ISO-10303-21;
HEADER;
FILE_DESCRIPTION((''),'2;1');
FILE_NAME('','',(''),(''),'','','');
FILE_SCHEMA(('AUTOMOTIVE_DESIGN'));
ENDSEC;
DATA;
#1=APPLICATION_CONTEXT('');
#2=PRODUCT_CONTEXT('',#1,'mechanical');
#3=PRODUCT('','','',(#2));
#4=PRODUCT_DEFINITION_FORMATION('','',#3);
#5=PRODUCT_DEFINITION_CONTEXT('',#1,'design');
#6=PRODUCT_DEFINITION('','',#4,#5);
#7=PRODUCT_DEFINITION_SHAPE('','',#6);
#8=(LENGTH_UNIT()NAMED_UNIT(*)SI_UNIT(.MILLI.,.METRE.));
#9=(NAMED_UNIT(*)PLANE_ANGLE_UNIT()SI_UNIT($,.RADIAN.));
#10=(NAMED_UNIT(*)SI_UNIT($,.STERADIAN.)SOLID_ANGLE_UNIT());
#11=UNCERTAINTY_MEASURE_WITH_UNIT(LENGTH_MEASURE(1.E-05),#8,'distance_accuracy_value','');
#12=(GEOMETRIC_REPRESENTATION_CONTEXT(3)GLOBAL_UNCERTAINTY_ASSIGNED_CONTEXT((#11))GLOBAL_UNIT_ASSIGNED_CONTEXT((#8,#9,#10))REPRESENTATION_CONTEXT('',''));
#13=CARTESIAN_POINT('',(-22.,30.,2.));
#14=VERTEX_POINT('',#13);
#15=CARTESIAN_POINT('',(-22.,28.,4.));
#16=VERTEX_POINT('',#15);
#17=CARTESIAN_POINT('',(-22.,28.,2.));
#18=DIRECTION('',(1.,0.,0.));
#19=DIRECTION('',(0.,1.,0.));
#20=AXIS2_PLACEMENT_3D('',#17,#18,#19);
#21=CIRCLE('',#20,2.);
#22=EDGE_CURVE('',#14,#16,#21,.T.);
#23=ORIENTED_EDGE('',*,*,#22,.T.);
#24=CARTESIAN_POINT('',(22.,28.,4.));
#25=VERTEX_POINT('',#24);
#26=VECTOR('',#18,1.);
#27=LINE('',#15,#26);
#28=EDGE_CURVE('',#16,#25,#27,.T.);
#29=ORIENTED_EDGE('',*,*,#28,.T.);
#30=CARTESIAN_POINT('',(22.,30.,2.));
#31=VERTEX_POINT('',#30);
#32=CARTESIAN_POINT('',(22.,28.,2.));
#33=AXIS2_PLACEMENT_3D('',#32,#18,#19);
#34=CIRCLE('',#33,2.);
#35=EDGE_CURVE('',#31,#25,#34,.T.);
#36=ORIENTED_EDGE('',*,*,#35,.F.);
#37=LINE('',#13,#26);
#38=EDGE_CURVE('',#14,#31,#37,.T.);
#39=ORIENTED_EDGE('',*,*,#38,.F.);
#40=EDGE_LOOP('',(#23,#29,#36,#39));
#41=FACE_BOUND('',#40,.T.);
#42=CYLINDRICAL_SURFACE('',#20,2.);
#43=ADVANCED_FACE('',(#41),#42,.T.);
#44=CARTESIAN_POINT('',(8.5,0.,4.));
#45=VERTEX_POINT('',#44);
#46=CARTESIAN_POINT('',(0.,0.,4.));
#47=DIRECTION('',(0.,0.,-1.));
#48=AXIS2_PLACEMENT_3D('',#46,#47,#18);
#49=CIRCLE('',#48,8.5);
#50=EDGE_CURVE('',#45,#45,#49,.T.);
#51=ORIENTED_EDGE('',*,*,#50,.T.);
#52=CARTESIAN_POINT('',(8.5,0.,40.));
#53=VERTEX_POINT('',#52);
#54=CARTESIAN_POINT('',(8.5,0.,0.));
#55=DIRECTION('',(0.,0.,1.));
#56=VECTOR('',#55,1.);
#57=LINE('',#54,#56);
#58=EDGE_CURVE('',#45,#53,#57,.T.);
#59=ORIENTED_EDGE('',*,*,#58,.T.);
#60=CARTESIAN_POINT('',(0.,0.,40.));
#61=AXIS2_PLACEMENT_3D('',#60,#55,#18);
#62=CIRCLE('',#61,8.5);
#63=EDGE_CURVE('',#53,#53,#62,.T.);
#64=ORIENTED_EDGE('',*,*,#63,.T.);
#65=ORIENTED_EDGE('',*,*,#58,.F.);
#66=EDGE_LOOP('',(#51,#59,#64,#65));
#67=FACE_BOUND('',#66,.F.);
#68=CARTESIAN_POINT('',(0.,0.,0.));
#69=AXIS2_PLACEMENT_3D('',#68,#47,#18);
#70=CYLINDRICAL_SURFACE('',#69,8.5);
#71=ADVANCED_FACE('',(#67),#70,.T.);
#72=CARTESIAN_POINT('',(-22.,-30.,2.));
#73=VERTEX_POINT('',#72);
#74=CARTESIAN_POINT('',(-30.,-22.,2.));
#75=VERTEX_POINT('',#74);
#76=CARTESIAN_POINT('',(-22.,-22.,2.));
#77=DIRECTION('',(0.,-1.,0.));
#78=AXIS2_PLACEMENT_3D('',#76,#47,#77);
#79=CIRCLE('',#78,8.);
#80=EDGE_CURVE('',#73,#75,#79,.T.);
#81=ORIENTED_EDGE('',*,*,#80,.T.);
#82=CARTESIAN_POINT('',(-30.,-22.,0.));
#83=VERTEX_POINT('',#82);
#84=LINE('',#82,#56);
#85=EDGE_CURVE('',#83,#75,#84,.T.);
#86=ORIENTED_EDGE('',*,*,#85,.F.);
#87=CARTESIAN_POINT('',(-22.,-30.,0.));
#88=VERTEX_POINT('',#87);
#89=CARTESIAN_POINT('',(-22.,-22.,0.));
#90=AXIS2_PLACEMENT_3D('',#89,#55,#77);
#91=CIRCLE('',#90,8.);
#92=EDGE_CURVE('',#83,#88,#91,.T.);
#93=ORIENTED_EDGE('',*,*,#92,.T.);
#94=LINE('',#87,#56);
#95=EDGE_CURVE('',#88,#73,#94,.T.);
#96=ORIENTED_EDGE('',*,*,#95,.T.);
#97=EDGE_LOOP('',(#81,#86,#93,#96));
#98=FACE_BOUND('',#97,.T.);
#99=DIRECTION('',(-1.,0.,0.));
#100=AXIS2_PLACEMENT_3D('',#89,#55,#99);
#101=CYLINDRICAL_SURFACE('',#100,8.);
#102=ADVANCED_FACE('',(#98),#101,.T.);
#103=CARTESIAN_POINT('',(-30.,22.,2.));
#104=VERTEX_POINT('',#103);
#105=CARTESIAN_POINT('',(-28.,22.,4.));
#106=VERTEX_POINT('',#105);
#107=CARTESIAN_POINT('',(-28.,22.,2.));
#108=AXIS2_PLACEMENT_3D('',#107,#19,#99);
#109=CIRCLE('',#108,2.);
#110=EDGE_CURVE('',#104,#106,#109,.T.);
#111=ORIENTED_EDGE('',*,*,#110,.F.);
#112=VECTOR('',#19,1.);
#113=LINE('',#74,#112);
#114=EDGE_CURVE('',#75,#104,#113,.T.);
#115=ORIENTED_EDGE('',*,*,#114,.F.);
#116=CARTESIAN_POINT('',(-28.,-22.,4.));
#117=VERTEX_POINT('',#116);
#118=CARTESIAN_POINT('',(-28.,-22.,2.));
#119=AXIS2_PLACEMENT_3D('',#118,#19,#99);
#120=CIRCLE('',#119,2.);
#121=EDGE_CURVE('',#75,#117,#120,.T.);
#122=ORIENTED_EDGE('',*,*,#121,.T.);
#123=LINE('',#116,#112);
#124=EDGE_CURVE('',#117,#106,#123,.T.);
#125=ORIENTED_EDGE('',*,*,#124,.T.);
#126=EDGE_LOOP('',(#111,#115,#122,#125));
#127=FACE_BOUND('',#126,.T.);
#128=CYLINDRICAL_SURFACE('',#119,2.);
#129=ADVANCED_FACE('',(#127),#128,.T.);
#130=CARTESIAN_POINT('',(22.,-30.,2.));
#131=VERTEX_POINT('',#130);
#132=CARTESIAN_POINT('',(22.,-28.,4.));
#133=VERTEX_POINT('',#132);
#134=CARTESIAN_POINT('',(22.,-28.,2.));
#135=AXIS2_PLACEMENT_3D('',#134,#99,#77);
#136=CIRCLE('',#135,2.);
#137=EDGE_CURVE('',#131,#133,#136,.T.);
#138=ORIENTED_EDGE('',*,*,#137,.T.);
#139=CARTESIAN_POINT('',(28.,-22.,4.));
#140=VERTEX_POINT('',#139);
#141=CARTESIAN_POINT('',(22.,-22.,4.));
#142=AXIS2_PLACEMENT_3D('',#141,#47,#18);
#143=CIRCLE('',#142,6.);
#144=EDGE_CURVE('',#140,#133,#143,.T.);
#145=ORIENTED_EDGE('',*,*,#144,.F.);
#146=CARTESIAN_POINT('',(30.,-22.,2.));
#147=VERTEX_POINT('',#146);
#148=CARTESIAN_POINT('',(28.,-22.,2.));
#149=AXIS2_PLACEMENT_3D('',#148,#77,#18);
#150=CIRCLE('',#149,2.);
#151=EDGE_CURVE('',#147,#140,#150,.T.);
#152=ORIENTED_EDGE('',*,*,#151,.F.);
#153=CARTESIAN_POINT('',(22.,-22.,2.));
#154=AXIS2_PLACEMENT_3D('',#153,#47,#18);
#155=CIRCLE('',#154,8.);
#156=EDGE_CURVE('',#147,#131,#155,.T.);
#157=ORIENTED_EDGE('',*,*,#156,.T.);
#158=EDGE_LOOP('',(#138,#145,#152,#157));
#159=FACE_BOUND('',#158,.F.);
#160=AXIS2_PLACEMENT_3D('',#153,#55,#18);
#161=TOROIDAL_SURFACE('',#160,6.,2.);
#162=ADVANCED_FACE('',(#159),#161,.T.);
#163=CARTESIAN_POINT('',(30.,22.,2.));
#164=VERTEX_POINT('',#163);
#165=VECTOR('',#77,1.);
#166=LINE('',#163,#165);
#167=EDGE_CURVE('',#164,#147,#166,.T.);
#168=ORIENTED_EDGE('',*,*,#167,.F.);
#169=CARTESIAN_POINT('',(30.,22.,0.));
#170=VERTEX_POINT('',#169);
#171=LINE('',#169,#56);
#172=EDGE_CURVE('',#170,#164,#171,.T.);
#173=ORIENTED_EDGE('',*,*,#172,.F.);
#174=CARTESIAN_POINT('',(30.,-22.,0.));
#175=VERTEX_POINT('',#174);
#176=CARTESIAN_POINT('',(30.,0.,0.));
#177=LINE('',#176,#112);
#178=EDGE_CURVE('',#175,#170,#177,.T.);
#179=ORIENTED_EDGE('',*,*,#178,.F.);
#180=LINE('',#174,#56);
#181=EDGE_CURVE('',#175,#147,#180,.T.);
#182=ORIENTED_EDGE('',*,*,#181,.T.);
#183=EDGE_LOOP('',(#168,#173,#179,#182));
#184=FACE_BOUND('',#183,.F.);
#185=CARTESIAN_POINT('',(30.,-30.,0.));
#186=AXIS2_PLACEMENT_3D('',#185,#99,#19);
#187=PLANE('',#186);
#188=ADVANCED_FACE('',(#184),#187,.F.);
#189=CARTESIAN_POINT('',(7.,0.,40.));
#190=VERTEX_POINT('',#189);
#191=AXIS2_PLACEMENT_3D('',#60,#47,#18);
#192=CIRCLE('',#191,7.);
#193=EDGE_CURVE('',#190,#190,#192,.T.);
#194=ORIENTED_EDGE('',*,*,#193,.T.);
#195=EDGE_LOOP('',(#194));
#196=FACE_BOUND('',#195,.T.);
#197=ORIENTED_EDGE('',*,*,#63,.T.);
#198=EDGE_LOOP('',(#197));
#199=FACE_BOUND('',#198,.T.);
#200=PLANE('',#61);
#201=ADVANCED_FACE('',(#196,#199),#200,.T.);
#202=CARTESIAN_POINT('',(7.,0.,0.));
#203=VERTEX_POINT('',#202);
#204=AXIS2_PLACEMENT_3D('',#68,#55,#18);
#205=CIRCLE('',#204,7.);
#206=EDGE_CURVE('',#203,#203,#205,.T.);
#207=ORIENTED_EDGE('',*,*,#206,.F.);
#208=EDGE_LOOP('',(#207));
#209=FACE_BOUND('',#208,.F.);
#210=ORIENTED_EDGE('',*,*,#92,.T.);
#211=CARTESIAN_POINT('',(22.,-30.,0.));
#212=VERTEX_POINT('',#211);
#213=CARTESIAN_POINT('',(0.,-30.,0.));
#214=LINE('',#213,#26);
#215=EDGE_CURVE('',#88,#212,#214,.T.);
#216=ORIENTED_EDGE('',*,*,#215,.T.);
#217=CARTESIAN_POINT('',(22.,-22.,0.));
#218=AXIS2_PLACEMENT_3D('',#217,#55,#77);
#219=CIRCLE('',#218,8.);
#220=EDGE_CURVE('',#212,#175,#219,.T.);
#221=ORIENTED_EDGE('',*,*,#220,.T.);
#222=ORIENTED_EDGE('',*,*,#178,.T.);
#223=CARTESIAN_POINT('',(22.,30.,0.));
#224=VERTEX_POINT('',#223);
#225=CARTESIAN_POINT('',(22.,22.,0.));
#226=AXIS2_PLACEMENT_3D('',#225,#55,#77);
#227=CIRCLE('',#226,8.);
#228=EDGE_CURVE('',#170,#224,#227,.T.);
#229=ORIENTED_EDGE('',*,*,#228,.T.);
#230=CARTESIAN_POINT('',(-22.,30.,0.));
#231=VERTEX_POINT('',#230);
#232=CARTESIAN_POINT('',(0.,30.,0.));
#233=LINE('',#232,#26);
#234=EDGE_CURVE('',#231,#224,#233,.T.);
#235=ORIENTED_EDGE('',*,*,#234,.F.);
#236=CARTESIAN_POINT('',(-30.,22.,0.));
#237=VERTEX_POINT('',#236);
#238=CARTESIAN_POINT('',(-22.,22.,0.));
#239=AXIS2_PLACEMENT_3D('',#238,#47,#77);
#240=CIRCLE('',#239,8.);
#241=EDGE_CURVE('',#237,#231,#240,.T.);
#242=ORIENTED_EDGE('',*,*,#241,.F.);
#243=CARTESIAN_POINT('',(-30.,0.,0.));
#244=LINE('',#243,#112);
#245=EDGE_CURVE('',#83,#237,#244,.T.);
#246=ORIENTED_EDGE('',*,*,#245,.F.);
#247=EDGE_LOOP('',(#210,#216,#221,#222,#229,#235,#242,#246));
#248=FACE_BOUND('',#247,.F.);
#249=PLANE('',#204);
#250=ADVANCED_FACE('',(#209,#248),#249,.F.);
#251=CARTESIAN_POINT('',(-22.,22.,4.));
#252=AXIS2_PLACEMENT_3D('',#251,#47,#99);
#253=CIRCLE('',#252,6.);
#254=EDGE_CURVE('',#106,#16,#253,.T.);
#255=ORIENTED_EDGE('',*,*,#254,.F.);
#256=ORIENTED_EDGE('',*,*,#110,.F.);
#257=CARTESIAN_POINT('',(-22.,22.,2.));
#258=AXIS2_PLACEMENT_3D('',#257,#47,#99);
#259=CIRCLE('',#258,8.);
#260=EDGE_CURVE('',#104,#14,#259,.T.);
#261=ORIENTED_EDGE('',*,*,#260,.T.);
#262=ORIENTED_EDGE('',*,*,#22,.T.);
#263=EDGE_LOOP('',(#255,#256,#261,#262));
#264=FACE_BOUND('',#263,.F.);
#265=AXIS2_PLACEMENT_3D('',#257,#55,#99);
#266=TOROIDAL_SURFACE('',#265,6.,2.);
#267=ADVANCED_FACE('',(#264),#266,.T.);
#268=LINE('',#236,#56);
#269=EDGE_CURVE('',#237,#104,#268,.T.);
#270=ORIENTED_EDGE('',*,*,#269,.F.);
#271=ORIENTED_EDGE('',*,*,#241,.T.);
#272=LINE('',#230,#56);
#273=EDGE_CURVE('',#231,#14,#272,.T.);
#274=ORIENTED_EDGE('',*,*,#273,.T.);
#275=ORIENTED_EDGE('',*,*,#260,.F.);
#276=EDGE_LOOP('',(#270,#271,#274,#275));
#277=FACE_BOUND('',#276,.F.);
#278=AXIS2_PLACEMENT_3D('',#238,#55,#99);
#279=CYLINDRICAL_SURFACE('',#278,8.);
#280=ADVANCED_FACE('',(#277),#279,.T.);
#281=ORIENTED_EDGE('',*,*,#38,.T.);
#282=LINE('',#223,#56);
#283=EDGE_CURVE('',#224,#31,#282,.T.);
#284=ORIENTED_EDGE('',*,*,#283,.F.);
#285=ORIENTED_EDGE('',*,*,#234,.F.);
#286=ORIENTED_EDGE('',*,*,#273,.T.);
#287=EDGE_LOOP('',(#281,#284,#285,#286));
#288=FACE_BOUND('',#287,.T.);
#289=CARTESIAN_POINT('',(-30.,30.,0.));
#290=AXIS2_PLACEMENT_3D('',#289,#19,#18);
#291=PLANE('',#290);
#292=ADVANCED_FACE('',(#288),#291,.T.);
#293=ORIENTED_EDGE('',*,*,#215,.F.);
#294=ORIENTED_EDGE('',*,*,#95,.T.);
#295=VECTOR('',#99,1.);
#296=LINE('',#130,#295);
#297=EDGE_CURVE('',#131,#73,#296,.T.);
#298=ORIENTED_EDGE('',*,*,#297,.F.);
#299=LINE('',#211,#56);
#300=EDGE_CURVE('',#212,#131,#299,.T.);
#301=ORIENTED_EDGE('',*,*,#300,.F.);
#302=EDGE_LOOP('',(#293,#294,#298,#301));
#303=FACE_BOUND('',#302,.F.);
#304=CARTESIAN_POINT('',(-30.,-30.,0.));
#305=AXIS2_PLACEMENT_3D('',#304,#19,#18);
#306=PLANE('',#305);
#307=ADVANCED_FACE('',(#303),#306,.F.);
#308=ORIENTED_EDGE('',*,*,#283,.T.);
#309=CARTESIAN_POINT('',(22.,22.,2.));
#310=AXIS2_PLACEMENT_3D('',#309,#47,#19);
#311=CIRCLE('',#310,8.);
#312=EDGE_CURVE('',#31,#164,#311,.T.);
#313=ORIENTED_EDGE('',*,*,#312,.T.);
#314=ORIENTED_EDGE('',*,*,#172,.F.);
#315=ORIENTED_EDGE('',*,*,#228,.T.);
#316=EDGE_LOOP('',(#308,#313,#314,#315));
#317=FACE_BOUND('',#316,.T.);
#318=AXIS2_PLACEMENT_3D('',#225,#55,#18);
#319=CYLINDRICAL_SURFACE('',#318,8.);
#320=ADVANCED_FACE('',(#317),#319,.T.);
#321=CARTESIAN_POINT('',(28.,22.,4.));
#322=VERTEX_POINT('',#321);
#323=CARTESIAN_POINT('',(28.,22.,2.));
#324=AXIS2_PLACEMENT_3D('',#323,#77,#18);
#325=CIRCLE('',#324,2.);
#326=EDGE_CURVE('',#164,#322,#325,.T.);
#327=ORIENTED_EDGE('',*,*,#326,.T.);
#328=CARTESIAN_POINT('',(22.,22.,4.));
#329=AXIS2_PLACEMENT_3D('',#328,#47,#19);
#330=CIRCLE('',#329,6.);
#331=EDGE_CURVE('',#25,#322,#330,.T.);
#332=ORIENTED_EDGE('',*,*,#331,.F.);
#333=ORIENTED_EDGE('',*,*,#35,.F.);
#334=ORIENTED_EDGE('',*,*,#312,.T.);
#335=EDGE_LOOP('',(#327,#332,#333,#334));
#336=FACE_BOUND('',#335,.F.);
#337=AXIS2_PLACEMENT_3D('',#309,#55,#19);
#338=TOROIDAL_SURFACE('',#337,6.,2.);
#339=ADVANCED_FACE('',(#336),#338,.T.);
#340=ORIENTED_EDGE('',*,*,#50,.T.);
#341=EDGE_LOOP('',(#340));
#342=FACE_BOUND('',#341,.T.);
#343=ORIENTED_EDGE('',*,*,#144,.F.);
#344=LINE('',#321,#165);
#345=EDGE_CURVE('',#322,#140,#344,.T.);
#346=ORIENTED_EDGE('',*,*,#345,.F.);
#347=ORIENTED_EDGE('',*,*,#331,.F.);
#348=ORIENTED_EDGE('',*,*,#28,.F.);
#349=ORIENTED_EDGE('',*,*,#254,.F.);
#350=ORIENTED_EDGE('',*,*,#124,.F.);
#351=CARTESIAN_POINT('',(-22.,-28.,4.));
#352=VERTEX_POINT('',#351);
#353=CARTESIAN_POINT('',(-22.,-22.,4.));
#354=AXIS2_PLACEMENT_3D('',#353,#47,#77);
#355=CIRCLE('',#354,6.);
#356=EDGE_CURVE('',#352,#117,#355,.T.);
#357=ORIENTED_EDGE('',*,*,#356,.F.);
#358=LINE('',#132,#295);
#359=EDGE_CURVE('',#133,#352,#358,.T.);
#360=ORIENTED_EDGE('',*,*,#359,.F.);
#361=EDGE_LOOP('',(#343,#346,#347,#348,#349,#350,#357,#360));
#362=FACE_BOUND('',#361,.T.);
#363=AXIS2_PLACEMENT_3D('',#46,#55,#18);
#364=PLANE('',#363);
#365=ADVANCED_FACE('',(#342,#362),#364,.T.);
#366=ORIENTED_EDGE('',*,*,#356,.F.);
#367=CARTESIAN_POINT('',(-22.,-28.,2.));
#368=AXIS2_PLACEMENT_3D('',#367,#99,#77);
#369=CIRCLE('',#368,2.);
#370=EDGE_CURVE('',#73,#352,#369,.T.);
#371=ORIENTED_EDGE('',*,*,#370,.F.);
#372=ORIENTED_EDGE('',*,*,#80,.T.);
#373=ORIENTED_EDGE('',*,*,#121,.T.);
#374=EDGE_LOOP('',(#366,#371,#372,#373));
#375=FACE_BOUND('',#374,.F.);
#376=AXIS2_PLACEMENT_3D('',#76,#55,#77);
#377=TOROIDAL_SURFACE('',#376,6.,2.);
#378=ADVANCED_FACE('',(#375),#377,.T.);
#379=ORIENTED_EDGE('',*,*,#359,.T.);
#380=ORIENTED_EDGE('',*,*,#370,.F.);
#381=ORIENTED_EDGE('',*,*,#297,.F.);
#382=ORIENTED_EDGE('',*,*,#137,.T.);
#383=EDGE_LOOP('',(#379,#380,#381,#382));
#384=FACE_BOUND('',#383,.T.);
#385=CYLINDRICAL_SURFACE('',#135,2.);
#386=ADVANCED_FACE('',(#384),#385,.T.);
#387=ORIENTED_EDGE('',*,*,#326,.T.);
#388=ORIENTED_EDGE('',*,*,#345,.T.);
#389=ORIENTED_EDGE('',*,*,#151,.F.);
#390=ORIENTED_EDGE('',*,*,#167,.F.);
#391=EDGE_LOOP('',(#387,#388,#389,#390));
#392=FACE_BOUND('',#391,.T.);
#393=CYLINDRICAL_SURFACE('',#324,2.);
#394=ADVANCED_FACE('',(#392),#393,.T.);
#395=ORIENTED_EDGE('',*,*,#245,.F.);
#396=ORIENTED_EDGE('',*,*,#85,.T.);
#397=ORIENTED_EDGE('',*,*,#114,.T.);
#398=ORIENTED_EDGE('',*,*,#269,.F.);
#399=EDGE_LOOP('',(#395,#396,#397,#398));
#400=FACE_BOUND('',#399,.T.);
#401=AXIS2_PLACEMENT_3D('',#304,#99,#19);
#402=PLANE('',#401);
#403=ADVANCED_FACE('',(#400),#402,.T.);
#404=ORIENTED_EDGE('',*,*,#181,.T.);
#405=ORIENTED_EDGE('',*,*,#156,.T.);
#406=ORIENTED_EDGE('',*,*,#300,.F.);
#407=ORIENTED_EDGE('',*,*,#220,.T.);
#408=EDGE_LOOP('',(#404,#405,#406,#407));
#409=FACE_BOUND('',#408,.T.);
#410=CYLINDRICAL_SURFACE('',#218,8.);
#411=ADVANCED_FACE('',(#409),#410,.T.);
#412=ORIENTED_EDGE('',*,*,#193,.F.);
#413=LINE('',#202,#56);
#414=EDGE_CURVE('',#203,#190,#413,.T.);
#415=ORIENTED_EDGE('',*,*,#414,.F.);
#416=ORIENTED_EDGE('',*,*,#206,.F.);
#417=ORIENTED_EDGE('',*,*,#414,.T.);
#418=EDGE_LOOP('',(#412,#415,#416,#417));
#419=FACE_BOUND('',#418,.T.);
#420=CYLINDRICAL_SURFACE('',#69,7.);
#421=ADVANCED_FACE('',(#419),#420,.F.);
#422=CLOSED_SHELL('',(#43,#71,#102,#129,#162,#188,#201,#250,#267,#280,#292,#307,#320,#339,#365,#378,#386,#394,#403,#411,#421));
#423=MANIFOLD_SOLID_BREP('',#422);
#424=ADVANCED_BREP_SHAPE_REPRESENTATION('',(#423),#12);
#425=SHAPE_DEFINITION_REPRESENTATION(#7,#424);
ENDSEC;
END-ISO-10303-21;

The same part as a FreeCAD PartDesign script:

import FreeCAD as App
import Part
import Sketcher
from FreeCAD import Vector
Q = App.Units.Quantity


def edges_at(feature, points):
    """Names of the edges that pass closest to the given points."""
    edges = feature.Shape.Edges
    near = lambda p: min(range(len(edges)), key=lambda i: edges[i].distToShape(Part.Vertex(*p))[0])
    return sorted({f"Edge{near(p) + 1}" for p in points})

doc = App.newDocument("Part")
body = doc.addObject("PartDesign::Body", "Body")

sketch1 = doc.addObject("Sketcher::SketchObject", "Sketch")
body.addObject(sketch1)
sketch1.AttachmentSupport = (doc.XY_Plane, [""])
sketch1.MapMode = "FlatFace"
sketch1.addGeometry(Part.Circle(Vector(0, 0, 0), Vector(0, 0, 1), 7), False)
sketch1.addConstraint(Sketcher.Constraint("Coincident", 0, 3, -1, 1))
sketch1.addConstraint(Sketcher.Constraint("Diameter", 0, Q("14 mm")))
pad1 = doc.addObject("PartDesign::Pad", "Pad")
body.addObject(pad1)
pad1.Profile = sketch1
pad1.Length = 50
body2 = doc.addObject("PartDesign::Body", "Body001")

sketch2 = doc.addObject("Sketcher::SketchObject", "Sketch001")
body2.addObject(sketch2)
sketch2.AttachmentSupport = (doc.getObject("XY_Plane001"), [""])
sketch2.MapMode = "FlatFace"
sketch2.addGeometry(Part.Circle(Vector(0, 0, 0), Vector(0, 0, 1), 8.5), False)
sketch2.addConstraint(Sketcher.Constraint("Coincident", 0, 3, -1, 1))
sketch2.addConstraint(Sketcher.Constraint("Diameter", 0, Q("17 mm")))
pad2 = doc.addObject("PartDesign::Pad", "Pad001")
body2.addObject(pad2)
pad2.Profile = sketch2
pad2.Length = 40
body3 = doc.addObject("PartDesign::Body", "Body002")

sketch3 = doc.addObject("Sketcher::SketchObject", "Sketch002")
body3.addObject(sketch3)
sketch3.AttachmentSupport = (doc.getObject("XY_Plane002"), [""])
sketch3.MapMode = "FlatFace"
sketch3.addGeometry(Part.LineSegment(Vector(-30, 30, 0), Vector(-30, -30, 0)), False)
sketch3.addGeometry(Part.LineSegment(Vector(-30, -30, 0), Vector(30, -30, 0)), False)
sketch3.addGeometry(Part.LineSegment(Vector(30, -30, 0), Vector(30, 30, 0)), False)
sketch3.addGeometry(Part.LineSegment(Vector(30, 30, 0), Vector(-30, 30, 0)), False)
sketch3.addConstraint(Sketcher.Constraint("Coincident", 0, 2, 1, 1))
sketch3.addConstraint(Sketcher.Constraint("Coincident", 1, 2, 2, 1))
sketch3.addConstraint(Sketcher.Constraint("Coincident", 2, 2, 3, 1))
sketch3.addConstraint(Sketcher.Constraint("Coincident", 3, 2, 0, 1))
sketch3.addConstraint(Sketcher.Constraint("Vertical", 0))
sketch3.addConstraint(Sketcher.Constraint("Horizontal", 1))
sketch3.addConstraint(Sketcher.Constraint("Vertical", 2))
sketch3.addConstraint(Sketcher.Constraint("Horizontal", 3))
sketch3.addConstraint(Sketcher.Constraint("Symmetric", 0, 2, 2, 2, -1, 1))
sketch3.addConstraint(Sketcher.Constraint("Equal", 3, 0))
sketch3.addConstraint(Sketcher.Constraint("DistanceX", 1, 1, 1, 2, Q("60 mm")))
pad3 = doc.addObject("PartDesign::Pad", "Pad002")
body3.addObject(pad3)
pad3.Profile = sketch3
pad3.Length = 4
doc.recompute()

fillet = doc.addObject("PartDesign::Fillet", "Fillet")
body3.addObject(fillet)
fillet.Base = (pad3, edges_at(pad3, [
    (-30, -30, 2),
    (-30, 30, 2),
    (30, -30, 2),
    (30, 30, 2),
]))
fillet.Radius = 8
doc.recompute()

fillet2 = doc.addObject("PartDesign::Fillet", "Fillet001")
body3.addObject(fillet2)
fillet2.Base = (fillet, edges_at(fillet, [
    (-30, 0, 4),
    (-27.657, -27.657, 4),
    (-27.657, 27.657, 4),
    (0, -30, 4),
    (0, 30, 4),
    (27.657, -27.657, 4),
    (27.657, 27.657, 4),
    (30, 0, 4),
]))
fillet2.Radius = 2
doc.recompute()

boolean = doc.addObject("PartDesign::Boolean", "Boolean")
body3.addObject(boolean)
boolean.Type = "Fuse"
boolean.addObjects([body2])
doc.recompute()

boolean2 = doc.addObject("PartDesign::Boolean", "Boolean001")
body3.addObject(boolean2)
boolean2.Type = "Cut"
boolean2.addObjects([body])

doc.recompute()
